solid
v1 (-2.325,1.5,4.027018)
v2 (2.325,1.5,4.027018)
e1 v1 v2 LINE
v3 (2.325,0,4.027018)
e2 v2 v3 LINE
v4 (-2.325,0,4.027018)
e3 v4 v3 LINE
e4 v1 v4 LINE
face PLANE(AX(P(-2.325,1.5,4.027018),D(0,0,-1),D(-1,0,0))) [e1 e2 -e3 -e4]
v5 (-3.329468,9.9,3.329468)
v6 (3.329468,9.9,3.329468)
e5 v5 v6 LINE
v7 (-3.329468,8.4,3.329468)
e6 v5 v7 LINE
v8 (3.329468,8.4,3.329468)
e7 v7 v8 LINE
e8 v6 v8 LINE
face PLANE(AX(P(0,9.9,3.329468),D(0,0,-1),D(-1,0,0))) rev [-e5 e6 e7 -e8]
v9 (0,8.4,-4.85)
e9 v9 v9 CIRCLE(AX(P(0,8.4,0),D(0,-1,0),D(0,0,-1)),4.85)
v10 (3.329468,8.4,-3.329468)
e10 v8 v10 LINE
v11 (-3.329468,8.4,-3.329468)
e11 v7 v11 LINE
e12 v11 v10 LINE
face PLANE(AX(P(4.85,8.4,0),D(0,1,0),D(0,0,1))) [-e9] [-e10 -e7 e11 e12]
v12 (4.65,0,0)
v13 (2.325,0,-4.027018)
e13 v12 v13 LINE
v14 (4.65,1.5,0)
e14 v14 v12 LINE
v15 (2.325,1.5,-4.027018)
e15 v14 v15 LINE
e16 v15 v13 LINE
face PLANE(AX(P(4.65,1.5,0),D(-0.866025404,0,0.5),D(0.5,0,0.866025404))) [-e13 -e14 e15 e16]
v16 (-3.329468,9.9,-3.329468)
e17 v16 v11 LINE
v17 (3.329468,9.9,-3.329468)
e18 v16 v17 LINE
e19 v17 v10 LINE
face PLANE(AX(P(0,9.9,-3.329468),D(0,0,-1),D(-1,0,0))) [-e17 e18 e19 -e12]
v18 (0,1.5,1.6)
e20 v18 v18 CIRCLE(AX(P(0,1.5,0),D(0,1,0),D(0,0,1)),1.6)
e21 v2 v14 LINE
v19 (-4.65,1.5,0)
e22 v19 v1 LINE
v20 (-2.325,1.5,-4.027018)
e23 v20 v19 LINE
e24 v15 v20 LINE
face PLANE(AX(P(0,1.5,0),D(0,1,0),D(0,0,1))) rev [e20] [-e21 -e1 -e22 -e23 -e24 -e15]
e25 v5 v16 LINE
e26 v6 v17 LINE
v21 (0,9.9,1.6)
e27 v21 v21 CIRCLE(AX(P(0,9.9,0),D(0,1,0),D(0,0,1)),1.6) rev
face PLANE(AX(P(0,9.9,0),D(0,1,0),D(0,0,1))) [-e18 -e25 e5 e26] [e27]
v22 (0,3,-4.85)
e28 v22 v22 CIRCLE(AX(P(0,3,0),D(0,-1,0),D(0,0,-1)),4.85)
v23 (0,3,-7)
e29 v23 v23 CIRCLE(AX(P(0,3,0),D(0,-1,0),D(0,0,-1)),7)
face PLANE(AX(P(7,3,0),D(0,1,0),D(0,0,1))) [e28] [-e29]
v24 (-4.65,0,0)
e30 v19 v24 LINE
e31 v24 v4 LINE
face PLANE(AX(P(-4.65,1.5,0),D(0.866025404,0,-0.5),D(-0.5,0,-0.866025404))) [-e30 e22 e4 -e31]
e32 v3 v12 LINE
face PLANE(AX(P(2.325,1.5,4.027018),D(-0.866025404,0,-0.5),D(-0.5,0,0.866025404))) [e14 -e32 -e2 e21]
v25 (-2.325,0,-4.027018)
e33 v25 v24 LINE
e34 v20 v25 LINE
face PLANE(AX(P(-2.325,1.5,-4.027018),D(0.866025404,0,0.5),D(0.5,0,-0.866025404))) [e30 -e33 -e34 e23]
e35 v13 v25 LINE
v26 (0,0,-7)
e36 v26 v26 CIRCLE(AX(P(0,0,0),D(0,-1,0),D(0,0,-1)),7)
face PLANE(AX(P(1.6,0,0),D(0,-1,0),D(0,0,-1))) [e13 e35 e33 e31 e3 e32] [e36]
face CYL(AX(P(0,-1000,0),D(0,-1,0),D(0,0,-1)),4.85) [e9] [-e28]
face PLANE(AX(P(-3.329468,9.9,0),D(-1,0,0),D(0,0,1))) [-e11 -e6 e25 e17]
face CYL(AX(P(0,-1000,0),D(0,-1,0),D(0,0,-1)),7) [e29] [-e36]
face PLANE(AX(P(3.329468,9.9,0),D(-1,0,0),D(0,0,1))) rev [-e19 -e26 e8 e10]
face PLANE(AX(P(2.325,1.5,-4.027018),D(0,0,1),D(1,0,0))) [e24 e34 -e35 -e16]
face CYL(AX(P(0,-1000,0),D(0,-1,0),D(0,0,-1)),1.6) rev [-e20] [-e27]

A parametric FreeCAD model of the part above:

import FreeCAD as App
import Part
import Sketcher
from FreeCAD import Vector
Q = App.Units.Quantity

doc = App.newDocument("Part")
body = doc.addObject("PartDesign::Body", "Body")

# Sketch on XY plane
sketch1 = body.newObject("Sketcher::SketchObject", "Sketch")
sketch1.AttachmentSupport = (doc.getObject("XY_Plane"), [""])
sketch1.MapMode = "FlatFace"
sketch1.addGeometry([
    Part.LineSegment(Vector(1.6, 0, 0), Vector(7, 0, 0)),  # 0
    Part.LineSegment(Vector(7, 0, 0), Vector(7, 3, 0)),  # 1
    Part.LineSegment(Vector(7, 3, 0), Vector(4.8, 3, 0)),  # 2
    Part.LineSegment(Vector(4.8, 3, 0), Vector(4.8, 8.4, 0)),  # 3
    Part.LineSegment(Vector(4.8, 8.4, 0), Vector(1.6, 8.4, 0)),  # 4
    Part.LineSegment(Vector(1.6, 8.4, 0), Vector(1.6, 0, 0)),  # 5
], False)
sketch1.addConstraint([
    Sketcher.Constraint("Coincident", 0, 2, 1, 1),
    Sketcher.Constraint("Coincident", 1, 2, 2, 1),
    Sketcher.Constraint("Coincident", 2, 2, 3, 1),
    Sketcher.Constraint("Coincident", 3, 2, 4, 1),
    Sketcher.Constraint("Coincident", 4, 2, 5, 1),
    Sketcher.Constraint("Coincident", 5, 2, 0, 1),
    Sketcher.Constraint("Horizontal", 0),
    Sketcher.Constraint("Vertical", 1),
    Sketcher.Constraint("Horizontal", 2),
    Sketcher.Constraint("Vertical", 3),
    Sketcher.Constraint("Horizontal", 4),
    Sketcher.Constraint("Vertical", 5),
    Sketcher.Constraint("PointOnObject", 0, 2, -1),
    Sketcher.Constraint("Equal", 0, 3),
    Sketcher.Constraint("DistanceY", 1, 1, 1, 2, 3.0),
    Sketcher.Constraint("DistanceX", 0, 1, 0, 2, 5.4),
    Sketcher.Constraint("DistanceX", -1, 1, 0, 2, 7.0),
    Sketcher.Constraint("DistanceX", 2, 2, 2, 1, 2.15),
])
revolution = body.newObject("PartDesign::Revolution", "Revolution")
revolution.Profile = sketch1
revolution.ReferenceAxis = (sketch1, ["V_Axis"])
revolution.Angle = 360

# Sketch on XZ plane
sketch2 = body.newObject("Sketcher::SketchObject", "Sketch001")
sketch2.AttachmentSupport = (doc.getObject("XZ_Plane"), [""])
sketch2.MapMode = "FlatFace"
sketch2.AttachmentOffset = App.Placement(Vector(0, 0, -8.4), App.Rotation())
sketch2.addGeometry([
    Part.LineSegment(Vector(-3.3, -3.3, 0), Vector(-3.3, 3.3, 0)),  # 0
    Part.LineSegment(Vector(-3.3, 3.3, 0), Vector(3.3, 3.3, 0)),  # 1
    Part.LineSegment(Vector(3.3, 3.3, 0), Vector(3.3, -3.3, 0)),  # 2
    Part.LineSegment(Vector(3.3, -3.3, 0), Vector(-3.3, -3.3, 0)),  # 3
    Part.Circle(Vector(0, 0, 0), Vector(0, 0, 1), 1.6),  # 4
], False)
sketch2.addConstraint([
    Sketcher.Constraint("Coincident", 0, 2, 1, 1),
    Sketcher.Constraint("Coincident", 1, 2, 2, 1),
    Sketcher.Constraint("Coincident", 2, 2, 3, 1),
    Sketcher.Constraint("Coincident", 3, 2, 0, 1),
    Sketcher.Constraint("Vertical", 0),
    Sketcher.Constraint("Horizontal", 1),
    Sketcher.Constraint("Vertical", 2),
    Sketcher.Constraint("Horizontal", 3),
    Sketcher.Constraint("Coincident", 4, 3, -1, 1),
    Sketcher.Constraint("Symmetric", 0, 2, 2, 2, -1, 1),
    Sketcher.Constraint("Equal", 3, 0),
    Sketcher.Constraint("Diameter", 4, 3.2),
    Sketcher.Constraint("DistanceX", 1, 1, 1, 2, 6.658936),
])
pad1 = body.newObject("PartDesign::Pad", "Pad")
pad1.Profile = sketch2
pad1.Length = 1.5
pad1.Reversed = True

# Sketch on XZ plane
sketch3 = body.newObject("Sketcher::SketchObject", "Sketch002")
sketch3.AttachmentSupport = (doc.getObject("XZ_Plane"), [""])
sketch3.MapMode = "FlatFace"
sketch3.addGeometry([
    Part.LineSegment(Vector(4.7, 0, 0), Vector(2.3, -4, 0)),  # 0
    Part.LineSegment(Vector(2.3, -4, 0), Vector(-2.3, -4, 0)),  # 1
    Part.LineSegment(Vector(-2.3, -4, 0), Vector(-4.7, 0, 0)),  # 2
    Part.LineSegment(Vector(-4.7, 0, 0), Vector(-2.3, 4, 0)),  # 3
    Part.LineSegment(Vector(-2.3, 4, 0), Vector(2.3, 4, 0)),  # 4
    Part.LineSegment(Vector(2.3, 4, 0), Vector(4.7, 0, 0)),  # 5
], False)
sketch3.addConstraint([
    Sketcher.Constraint("Coincident", 0, 2, 1, 1),
    Sketcher.Constraint("Coincident", 1, 2, 2, 1),
    Sketcher.Constraint("Coincident", 2, 2, 3, 1),
    Sketcher.Constraint("Coincident", 3, 2, 4, 1),
    Sketcher.Constraint("Coincident", 4, 2, 5, 1),
    Sketcher.Constraint("Coincident", 5, 2, 0, 1),
    Sketcher.Constraint("Horizontal", 1),
    Sketcher.Constraint("Horizontal", 4),
    Sketcher.Constraint("Symmetric", 0, 2, 3, 2, -1, 1),
    Sketcher.Constraint("Symmetric", 2, 2, 5, 2, -1, 1),
    Sketcher.Constraint("PointOnObject", 2, 2, -1),
    Sketcher.Constraint("Parallel", 2, 5),
    Sketcher.Constraint("Vertical", 1, 2, 3, 2),
    Sketcher.Constraint("Angle", 0, Q("-120 deg")),
    Sketcher.Constraint("DistanceX", 1, 2, 1, 1, 4.65),
    Sketcher.Constraint("DistanceX", 2, 2, 5, 2, 9.3),
])
pocket1 = body.newObject("PartDesign::Pocket", "Pocket")
pocket1.Profile = sketch3
pocket1.Length = 1.5

doc.recompute()
